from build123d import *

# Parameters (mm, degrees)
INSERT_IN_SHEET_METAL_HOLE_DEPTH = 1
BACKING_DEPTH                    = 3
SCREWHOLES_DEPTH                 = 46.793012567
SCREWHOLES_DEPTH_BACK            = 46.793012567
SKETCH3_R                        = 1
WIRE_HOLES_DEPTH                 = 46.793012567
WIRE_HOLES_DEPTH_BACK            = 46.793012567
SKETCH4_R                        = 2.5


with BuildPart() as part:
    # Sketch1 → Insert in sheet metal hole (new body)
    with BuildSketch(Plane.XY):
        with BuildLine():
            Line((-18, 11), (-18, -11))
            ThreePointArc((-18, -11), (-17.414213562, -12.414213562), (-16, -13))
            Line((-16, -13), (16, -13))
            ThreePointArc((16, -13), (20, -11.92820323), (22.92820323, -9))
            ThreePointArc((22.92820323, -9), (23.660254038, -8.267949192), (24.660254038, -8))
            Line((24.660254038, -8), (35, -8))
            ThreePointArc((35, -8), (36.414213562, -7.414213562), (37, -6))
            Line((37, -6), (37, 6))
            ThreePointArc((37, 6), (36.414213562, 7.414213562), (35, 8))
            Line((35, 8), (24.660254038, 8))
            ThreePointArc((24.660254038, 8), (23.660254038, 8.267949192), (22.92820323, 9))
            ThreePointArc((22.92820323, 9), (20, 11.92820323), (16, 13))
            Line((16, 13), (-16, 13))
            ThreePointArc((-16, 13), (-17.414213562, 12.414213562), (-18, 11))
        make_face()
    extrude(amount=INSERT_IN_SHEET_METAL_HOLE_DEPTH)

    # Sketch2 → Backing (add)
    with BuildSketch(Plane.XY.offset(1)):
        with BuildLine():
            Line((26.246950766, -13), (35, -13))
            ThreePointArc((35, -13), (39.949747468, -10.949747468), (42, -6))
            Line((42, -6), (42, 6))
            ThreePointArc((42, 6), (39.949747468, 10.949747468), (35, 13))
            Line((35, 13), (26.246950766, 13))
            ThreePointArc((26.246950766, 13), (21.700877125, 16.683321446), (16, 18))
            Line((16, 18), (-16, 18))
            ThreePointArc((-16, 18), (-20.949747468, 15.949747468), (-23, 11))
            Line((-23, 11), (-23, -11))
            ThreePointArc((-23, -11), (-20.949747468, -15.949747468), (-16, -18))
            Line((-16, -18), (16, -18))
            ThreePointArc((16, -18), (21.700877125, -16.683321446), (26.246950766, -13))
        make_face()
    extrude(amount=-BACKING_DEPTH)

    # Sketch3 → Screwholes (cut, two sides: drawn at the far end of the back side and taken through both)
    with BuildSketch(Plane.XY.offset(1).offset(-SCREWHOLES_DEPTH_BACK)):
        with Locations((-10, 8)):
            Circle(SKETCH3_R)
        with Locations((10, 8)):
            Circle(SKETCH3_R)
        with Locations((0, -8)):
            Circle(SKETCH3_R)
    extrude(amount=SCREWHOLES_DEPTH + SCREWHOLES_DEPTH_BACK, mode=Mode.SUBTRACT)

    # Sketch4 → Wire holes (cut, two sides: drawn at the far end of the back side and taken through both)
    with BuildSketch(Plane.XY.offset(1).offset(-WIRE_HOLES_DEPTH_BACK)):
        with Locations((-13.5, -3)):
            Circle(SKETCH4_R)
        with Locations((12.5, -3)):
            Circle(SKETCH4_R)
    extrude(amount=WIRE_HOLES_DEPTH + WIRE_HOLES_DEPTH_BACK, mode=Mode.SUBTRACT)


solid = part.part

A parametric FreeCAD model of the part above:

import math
import FreeCAD as App
import Part
import Sketcher

V = App.Vector

doc = App.newDocument("Part")
body = doc.addObject("PartDesign::Body", "Body")

sketch1 = body.newObject("Sketcher::SketchObject", "Sketch")
sketch1.AttachmentSupport = (doc.getObject("XY_Plane"), [""])
sketch1.MapMode = "FlatFace"
sketch1.addGeometry(Part.LineSegment(V(-18, 11, 0), V(-18, -11, 0)), False)
sketch1.addGeometry(Part.ArcOfCircle(Part.Circle(V(-16, -11, 0), V(0, 0, 1), 2), math.radians(-180), math.radians(-90)), False)
sketch1.addGeometry(Part.LineSegment(V(-16, -13, 0), V(16, -13, 0)), False)
sketch1.addGeometry(Part.ArcOfCircle(Part.Circle(V(16, -5, 0), V(0, 0, 1), 8), math.radians(-90), math.radians(-30)), False)
sketch1.addGeometry(Part.ArcOfCircle(Part.Circle(V(24.7, -10, 0), V(0, 0, 1), 2), math.radians(90), math.radians(150)), False)
sketch1.addGeometry(Part.LineSegment(V(24.7, -8, 0), V(35, -8, 0)), False)
sketch1.addGeometry(Part.ArcOfCircle(Part.Circle(V(35, -6, 0), V(0, 0, 1), 2), math.radians(-90), math.radians(0)), False)
sketch1.addGeometry(Part.LineSegment(V(37, -6, 0), V(37, 6, 0)), False)
sketch1.addGeometry(Part.ArcOfCircle(Part.Circle(V(35, 6, 0), V(0, 0, 1), 2), math.radians(0), math.radians(90)), False)
sketch1.addGeometry(Part.LineSegment(V(35, 8, 0), V(24.7, 8, 0)), False)
sketch1.addGeometry(Part.ArcOfCircle(Part.Circle(V(24.7, 10, 0), V(0, 0, 1), 2), math.radians(-150), math.radians(-90)), False)
sketch1.addGeometry(Part.ArcOfCircle(Part.Circle(V(16, 5, 0), V(0, 0, 1), 8), math.radians(30), math.radians(90)), False)
sketch1.addGeometry(Part.LineSegment(V(16, 13, 0), V(-16, 13, 0)), False)
sketch1.addGeometry(Part.ArcOfCircle(Part.Circle(V(-16, 11, 0), V(0, 0, 1), 2), math.radians(90), math.radians(180)), False)
sketch1.addConstraint(Sketcher.Constraint("Tangent", 0, 2, 1, 1))
sketch1.addConstraint(Sketcher.Constraint("Tangent", 1, 2, 2, 1))
sketch1.addConstraint(Sketcher.Constraint("Tangent", 2, 2, 3, 1))
sketch1.addConstraint(Sketcher.Constraint("Tangent", 3, 2, 4, 2))
sketch1.addConstraint(Sketcher.Constraint("Tangent", 4, 1, 5, 1))
sketch1.addConstraint(Sketcher.Constraint("Tangent", 5, 2, 6, 1))
sketch1.addConstraint(Sketcher.Constraint("Tangent", 6, 2, 7, 1))
sketch1.addConstraint(Sketcher.Constraint("Tangent", 7, 2, 8, 1))
sketch1.addConstraint(Sketcher.Constraint("Tangent", 8, 2, 9, 1))
sketch1.addConstraint(Sketcher.Constraint("Tangent", 9, 2, 10, 2))
sketch1.addConstraint(Sketcher.Constraint("Tangent", 10, 1, 11, 1))
sketch1.addConstraint(Sketcher.Constraint("Tangent", 11, 2, 12, 1))
sketch1.addConstraint(Sketcher.Constraint("Tangent", 12, 2, 13, 1))
sketch1.addConstraint(Sketcher.Constraint("Tangent", 13, 2, 0, 1))
sketch1.addConstraint(Sketcher.Constraint("Vertical", 0))
sketch1.addConstraint(Sketcher.Constraint("Horizontal", 2))
sketch1.addConstraint(Sketcher.Constraint("Horizontal", 5))
sketch1.addConstraint(Sketcher.Constraint("Vertical", 7))
sketch1.addConstraint(Sketcher.Constraint("Horizontal", 9))
sketch1.addConstraint(Sketcher.Constraint("Horizontal", 12))
sketch1.addConstraint(Sketcher.Constraint("Equal", 1, 4))
sketch1.addConstraint(Sketcher.Constraint("Equal", 4, 6))
sketch1.addConstraint(Sketcher.Constraint("Equal", 6, 8))
sketch1.addConstraint(Sketcher.Constraint("Equal", 8, 10))
sketch1.addConstraint(Sketcher.Constraint("Equal", 3, 11))
sketch1.addConstraint(Sketcher.Constraint("Equal", 10, 13))
sketch1.addConstraint(Sketcher.Constraint("Symmetric", 1, 2, 11, 2, -1, 1))
sketch1.addConstraint(Sketcher.Constraint("Symmetric", 4, 3, 10, 3, -1))
sketch1.addConstraint(Sketcher.Constraint("Radius", 1, 2.0))
sketch1.addConstraint(Sketcher.Constraint("Radius", 3, 8.0))
sketch1.addConstraint(Sketcher.Constraint("DistanceX", 2, 1, 2, 2, 32.0))
sketch1.addConstraint(Sketcher.Constraint("DistanceY", 0, 2, 0, 1, 22.0))
sketch1.addConstraint(Sketcher.Constraint("DistanceY", 7, 1, 7, 2, 12.0))
sketch1.addConstraint(Sketcher.Constraint("DistanceX", -1, 1, 6, 3, 35.0))
pad1 = body.newObject("PartDesign::Pad", "Pad")
pad1.Profile = sketch1
pad1.Length = 1

sketch2 = body.newObject("Sketcher::SketchObject", "Sketch001")
sketch2.AttachmentSupport = (doc.getObject("XY_Plane"), [""])
sketch2.MapMode = "FlatFace"
sketch2.AttachmentOffset = App.Placement(V(0, 0, 1), App.Rotation())
sketch2.addGeometry(Part.LineSegment(V(26, -13, 0), V(35, -13, 0)), False)
sketch2.addGeometry(Part.ArcOfCircle(Part.Circle(V(35, -6, 0), V(0, 0, 1), 7), math.radians(-90), math.radians(0)), False)
sketch2.addGeometry(Part.LineSegment(V(42, -6, 0), V(42, 6, 0)), False)
sketch2.addGeometry(Part.ArcOfCircle(Part.Circle(V(35, 6, 0), V(0, 0, 1), 7), math.radians(0), math.radians(90)), False)
sketch2.addGeometry(Part.LineSegment(V(35, 13, 0), V(26, 13, 0)), False)
sketch2.addGeometry(Part.ArcOfCircle(Part.Circle(V(16, 5, 0), V(0, 0, 1), 13), math.radians(38), math.radians(90)), False)
sketch2.addGeometry(Part.LineSegment(V(16, 18, 0), V(-16, 18, 0)), False)
sketch2.addGeometry(Part.ArcOfCircle(Part.Circle(V(-16, 11, 0), V(0, 0, 1), 7), math.radians(90), math.radians(180)), False)
sketch2.addGeometry(Part.LineSegment(V(-23, 11, 0), V(-23, -11, 0)), False)
sketch2.addGeometry(Part.ArcOfCircle(Part.Circle(V(-16, -11, 0), V(0, 0, 1), 7), math.radians(-180), math.radians(-90)), False)
sketch2.addGeometry(Part.LineSegment(V(-16, -18, 0), V(16, -18, 0)), False)
sketch2.addGeometry(Part.ArcOfCircle(Part.Circle(V(16, -5, 0), V(0, 0, 1), 13), math.radians(-90), math.radians(-38)), False)
sketch2.addConstraint(Sketcher.Constraint("Tangent", 0, 2, 1, 1))
sketch2.addConstraint(Sketcher.Constraint("Tangent", 1, 2, 2, 1))
sketch2.addConstraint(Sketcher.Constraint("Tangent", 2, 2, 3, 1))
sketch2.addConstraint(Sketcher.Constraint("Tangent", 3, 2, 4, 1))
sketch2.addConstraint(Sketcher.Constraint("Coincident", 4, 2, 5, 1))
sketch2.addConstraint(Sketcher.Constraint("Tangent", 5, 2, 6, 1))
sketch2.addConstraint(Sketcher.Constraint("Tangent", 6, 2, 7, 1))
sketch2.addConstraint(Sketcher.Constraint("Tangent", 7, 2, 8, 1))
sketch2.addConstraint(Sketcher.Constraint("Tangent", 8, 2, 9, 1))
sketch2.addConstraint(Sketcher.Constraint("Tangent", 9, 2, 10, 1))
sketch2.addConstraint(Sketcher.Constraint("Tangent", 10, 2, 11, 1))
sketch2.addConstraint(Sketcher.Constraint("Coincident", 11, 2, 0, 1))
sketch2.addConstraint(Sketcher.Constraint("Horizontal", 0))
sketch2.addConstraint(Sketcher.Constraint("Vertical", 2))
sketch2.addConstraint(Sketcher.Constraint("Horizontal", 4))
sketch2.addConstraint(Sketcher.Constraint("Horizontal", 6))
sketch2.addConstraint(Sketcher.Constraint("Vertical", 8))
sketch2.addConstraint(Sketcher.Constraint("Horizontal", 10))
sketch2.addConstraint(Sketcher.Constraint("Equal", 1, 3))
sketch2.addConstraint(Sketcher.Constraint("Equal", 3, 7))
sketch2.addConstraint(Sketcher.Constraint("Equal", 7, 9))
sketch2.addConstraint(Sketcher.Constraint("Equal", 5, 11))
sketch2.addConstraint(Sketcher.Constraint("Symmetric", 5, 2, 9, 2, -1, 1))
sketch2.addConstraint(Sketcher.Constraint("Symmetric", 4, 2, 11, 2, -1))
sketch2.addConstraint(Sketcher.Constraint("Radius", 1, 7.0))
sketch2.addConstraint(Sketcher.Constraint("Radius", 5, 13.0))
sketch2.addConstraint(Sketcher.Constraint("DistanceX", 6, 2, 6, 1, 32.0))
sketch2.addConstraint(Sketcher.Constraint("DistanceY", 2, 1, 2, 2, 12.0))
sketch2.addConstraint(Sketcher.Constraint("DistanceY", 8, 2, 8, 1, 22.0))
sketch2.addConstraint(Sketcher.Constraint("DistanceX", -1, 1, 1, 3, 35.0))
pad2 = body.newObject("PartDesign::Pad", "Pad001")
pad2.Profile = sketch2
pad2.Length = 3
pad2.Reversed = True

sketch3 = body.newObject("Sketcher::SketchObject", "Sketch002")
sketch3.AttachmentSupport = (doc.getObject("XY_Plane"), [""])
sketch3.MapMode = "FlatFace"
sketch3.AttachmentOffset = App.Placement(V(0, 0, 1), App.Rotation())
sketch3.addGeometry(Part.Circle(V(-10, 8, 0), V(0, 0, 1), 1), False)
sketch3.addGeometry(Part.Circle(V(10, 8, 0), V(0, 0, 1), 1), False)
sketch3.addGeometry(Part.Circle(V(0, -8, 0), V(0, 0, 1), 1), False)
sketch3.addConstraint(Sketcher.Constraint("Equal", 0, 1))
sketch3.addConstraint(Sketcher.Constraint("Equal", 1, 2))
sketch3.addConstraint(Sketcher.Constraint("Symmetric", 0, 3, 1, 3, -2))
sketch3.addConstraint(Sketcher.Constraint("PointOnObject", 2, 3, -2))
sketch3.addConstraint(Sketcher.Constraint("Diameter", 0, 2.0))
sketch3.addConstraint(Sketcher.Constraint("DistanceX", 0, 3, -1, 1, 10.0))
sketch3.addConstraint(Sketcher.Constraint("DistanceY", -1, 1, 0, 3, 8.0))
sketch3.addConstraint(Sketcher.Constraint("DistanceY", 2, 3, -1, 1, 8.0))
pocket1 = body.newObject("PartDesign::Pocket", "Pocket")
pocket1.Profile = sketch3
pocket1.Type = "ThroughAll"
pocket1.Midplane = True

sketch4 = body.newObject("Sketcher::SketchObject", "Sketch003")
sketch4.AttachmentSupport = (doc.getObject("XY_Plane"), [""])
sketch4.MapMode = "FlatFace"
sketch4.AttachmentOffset = App.Placement(V(0, 0, 1), App.Rotation())
sketch4.addGeometry(Part.Circle(V(-13.5, -3, 0), V(0, 0, 1), 2.5), False)
sketch4.addGeometry(Part.Circle(V(12.5, -3, 0), V(0, 0, 1), 2.5), False)
sketch4.addConstraint(Sketcher.Constraint("Equal", 0, 1))
sketch4.addConstraint(Sketcher.Constraint("Horizontal", 0, 3, 1, 3))
sketch4.addConstraint(Sketcher.Constraint("Diameter", 0, 5.0))
sketch4.addConstraint(Sketcher.Constraint("DistanceY", 0, 3, -1, 1, 3.0))
sketch4.addConstraint(Sketcher.Constraint("DistanceX", 0, 3, 1, 3, 26.0))
sketch4.addConstraint(Sketcher.Constraint("DistanceX", 0, 3, -1, 1, 13.5))
pocket2 = body.newObject("PartDesign::Pocket", "Pocket001")
pocket2.Profile = sketch4
pocket2.Type = "ThroughAll"
pocket2.Midplane = True

doc.recompute()
